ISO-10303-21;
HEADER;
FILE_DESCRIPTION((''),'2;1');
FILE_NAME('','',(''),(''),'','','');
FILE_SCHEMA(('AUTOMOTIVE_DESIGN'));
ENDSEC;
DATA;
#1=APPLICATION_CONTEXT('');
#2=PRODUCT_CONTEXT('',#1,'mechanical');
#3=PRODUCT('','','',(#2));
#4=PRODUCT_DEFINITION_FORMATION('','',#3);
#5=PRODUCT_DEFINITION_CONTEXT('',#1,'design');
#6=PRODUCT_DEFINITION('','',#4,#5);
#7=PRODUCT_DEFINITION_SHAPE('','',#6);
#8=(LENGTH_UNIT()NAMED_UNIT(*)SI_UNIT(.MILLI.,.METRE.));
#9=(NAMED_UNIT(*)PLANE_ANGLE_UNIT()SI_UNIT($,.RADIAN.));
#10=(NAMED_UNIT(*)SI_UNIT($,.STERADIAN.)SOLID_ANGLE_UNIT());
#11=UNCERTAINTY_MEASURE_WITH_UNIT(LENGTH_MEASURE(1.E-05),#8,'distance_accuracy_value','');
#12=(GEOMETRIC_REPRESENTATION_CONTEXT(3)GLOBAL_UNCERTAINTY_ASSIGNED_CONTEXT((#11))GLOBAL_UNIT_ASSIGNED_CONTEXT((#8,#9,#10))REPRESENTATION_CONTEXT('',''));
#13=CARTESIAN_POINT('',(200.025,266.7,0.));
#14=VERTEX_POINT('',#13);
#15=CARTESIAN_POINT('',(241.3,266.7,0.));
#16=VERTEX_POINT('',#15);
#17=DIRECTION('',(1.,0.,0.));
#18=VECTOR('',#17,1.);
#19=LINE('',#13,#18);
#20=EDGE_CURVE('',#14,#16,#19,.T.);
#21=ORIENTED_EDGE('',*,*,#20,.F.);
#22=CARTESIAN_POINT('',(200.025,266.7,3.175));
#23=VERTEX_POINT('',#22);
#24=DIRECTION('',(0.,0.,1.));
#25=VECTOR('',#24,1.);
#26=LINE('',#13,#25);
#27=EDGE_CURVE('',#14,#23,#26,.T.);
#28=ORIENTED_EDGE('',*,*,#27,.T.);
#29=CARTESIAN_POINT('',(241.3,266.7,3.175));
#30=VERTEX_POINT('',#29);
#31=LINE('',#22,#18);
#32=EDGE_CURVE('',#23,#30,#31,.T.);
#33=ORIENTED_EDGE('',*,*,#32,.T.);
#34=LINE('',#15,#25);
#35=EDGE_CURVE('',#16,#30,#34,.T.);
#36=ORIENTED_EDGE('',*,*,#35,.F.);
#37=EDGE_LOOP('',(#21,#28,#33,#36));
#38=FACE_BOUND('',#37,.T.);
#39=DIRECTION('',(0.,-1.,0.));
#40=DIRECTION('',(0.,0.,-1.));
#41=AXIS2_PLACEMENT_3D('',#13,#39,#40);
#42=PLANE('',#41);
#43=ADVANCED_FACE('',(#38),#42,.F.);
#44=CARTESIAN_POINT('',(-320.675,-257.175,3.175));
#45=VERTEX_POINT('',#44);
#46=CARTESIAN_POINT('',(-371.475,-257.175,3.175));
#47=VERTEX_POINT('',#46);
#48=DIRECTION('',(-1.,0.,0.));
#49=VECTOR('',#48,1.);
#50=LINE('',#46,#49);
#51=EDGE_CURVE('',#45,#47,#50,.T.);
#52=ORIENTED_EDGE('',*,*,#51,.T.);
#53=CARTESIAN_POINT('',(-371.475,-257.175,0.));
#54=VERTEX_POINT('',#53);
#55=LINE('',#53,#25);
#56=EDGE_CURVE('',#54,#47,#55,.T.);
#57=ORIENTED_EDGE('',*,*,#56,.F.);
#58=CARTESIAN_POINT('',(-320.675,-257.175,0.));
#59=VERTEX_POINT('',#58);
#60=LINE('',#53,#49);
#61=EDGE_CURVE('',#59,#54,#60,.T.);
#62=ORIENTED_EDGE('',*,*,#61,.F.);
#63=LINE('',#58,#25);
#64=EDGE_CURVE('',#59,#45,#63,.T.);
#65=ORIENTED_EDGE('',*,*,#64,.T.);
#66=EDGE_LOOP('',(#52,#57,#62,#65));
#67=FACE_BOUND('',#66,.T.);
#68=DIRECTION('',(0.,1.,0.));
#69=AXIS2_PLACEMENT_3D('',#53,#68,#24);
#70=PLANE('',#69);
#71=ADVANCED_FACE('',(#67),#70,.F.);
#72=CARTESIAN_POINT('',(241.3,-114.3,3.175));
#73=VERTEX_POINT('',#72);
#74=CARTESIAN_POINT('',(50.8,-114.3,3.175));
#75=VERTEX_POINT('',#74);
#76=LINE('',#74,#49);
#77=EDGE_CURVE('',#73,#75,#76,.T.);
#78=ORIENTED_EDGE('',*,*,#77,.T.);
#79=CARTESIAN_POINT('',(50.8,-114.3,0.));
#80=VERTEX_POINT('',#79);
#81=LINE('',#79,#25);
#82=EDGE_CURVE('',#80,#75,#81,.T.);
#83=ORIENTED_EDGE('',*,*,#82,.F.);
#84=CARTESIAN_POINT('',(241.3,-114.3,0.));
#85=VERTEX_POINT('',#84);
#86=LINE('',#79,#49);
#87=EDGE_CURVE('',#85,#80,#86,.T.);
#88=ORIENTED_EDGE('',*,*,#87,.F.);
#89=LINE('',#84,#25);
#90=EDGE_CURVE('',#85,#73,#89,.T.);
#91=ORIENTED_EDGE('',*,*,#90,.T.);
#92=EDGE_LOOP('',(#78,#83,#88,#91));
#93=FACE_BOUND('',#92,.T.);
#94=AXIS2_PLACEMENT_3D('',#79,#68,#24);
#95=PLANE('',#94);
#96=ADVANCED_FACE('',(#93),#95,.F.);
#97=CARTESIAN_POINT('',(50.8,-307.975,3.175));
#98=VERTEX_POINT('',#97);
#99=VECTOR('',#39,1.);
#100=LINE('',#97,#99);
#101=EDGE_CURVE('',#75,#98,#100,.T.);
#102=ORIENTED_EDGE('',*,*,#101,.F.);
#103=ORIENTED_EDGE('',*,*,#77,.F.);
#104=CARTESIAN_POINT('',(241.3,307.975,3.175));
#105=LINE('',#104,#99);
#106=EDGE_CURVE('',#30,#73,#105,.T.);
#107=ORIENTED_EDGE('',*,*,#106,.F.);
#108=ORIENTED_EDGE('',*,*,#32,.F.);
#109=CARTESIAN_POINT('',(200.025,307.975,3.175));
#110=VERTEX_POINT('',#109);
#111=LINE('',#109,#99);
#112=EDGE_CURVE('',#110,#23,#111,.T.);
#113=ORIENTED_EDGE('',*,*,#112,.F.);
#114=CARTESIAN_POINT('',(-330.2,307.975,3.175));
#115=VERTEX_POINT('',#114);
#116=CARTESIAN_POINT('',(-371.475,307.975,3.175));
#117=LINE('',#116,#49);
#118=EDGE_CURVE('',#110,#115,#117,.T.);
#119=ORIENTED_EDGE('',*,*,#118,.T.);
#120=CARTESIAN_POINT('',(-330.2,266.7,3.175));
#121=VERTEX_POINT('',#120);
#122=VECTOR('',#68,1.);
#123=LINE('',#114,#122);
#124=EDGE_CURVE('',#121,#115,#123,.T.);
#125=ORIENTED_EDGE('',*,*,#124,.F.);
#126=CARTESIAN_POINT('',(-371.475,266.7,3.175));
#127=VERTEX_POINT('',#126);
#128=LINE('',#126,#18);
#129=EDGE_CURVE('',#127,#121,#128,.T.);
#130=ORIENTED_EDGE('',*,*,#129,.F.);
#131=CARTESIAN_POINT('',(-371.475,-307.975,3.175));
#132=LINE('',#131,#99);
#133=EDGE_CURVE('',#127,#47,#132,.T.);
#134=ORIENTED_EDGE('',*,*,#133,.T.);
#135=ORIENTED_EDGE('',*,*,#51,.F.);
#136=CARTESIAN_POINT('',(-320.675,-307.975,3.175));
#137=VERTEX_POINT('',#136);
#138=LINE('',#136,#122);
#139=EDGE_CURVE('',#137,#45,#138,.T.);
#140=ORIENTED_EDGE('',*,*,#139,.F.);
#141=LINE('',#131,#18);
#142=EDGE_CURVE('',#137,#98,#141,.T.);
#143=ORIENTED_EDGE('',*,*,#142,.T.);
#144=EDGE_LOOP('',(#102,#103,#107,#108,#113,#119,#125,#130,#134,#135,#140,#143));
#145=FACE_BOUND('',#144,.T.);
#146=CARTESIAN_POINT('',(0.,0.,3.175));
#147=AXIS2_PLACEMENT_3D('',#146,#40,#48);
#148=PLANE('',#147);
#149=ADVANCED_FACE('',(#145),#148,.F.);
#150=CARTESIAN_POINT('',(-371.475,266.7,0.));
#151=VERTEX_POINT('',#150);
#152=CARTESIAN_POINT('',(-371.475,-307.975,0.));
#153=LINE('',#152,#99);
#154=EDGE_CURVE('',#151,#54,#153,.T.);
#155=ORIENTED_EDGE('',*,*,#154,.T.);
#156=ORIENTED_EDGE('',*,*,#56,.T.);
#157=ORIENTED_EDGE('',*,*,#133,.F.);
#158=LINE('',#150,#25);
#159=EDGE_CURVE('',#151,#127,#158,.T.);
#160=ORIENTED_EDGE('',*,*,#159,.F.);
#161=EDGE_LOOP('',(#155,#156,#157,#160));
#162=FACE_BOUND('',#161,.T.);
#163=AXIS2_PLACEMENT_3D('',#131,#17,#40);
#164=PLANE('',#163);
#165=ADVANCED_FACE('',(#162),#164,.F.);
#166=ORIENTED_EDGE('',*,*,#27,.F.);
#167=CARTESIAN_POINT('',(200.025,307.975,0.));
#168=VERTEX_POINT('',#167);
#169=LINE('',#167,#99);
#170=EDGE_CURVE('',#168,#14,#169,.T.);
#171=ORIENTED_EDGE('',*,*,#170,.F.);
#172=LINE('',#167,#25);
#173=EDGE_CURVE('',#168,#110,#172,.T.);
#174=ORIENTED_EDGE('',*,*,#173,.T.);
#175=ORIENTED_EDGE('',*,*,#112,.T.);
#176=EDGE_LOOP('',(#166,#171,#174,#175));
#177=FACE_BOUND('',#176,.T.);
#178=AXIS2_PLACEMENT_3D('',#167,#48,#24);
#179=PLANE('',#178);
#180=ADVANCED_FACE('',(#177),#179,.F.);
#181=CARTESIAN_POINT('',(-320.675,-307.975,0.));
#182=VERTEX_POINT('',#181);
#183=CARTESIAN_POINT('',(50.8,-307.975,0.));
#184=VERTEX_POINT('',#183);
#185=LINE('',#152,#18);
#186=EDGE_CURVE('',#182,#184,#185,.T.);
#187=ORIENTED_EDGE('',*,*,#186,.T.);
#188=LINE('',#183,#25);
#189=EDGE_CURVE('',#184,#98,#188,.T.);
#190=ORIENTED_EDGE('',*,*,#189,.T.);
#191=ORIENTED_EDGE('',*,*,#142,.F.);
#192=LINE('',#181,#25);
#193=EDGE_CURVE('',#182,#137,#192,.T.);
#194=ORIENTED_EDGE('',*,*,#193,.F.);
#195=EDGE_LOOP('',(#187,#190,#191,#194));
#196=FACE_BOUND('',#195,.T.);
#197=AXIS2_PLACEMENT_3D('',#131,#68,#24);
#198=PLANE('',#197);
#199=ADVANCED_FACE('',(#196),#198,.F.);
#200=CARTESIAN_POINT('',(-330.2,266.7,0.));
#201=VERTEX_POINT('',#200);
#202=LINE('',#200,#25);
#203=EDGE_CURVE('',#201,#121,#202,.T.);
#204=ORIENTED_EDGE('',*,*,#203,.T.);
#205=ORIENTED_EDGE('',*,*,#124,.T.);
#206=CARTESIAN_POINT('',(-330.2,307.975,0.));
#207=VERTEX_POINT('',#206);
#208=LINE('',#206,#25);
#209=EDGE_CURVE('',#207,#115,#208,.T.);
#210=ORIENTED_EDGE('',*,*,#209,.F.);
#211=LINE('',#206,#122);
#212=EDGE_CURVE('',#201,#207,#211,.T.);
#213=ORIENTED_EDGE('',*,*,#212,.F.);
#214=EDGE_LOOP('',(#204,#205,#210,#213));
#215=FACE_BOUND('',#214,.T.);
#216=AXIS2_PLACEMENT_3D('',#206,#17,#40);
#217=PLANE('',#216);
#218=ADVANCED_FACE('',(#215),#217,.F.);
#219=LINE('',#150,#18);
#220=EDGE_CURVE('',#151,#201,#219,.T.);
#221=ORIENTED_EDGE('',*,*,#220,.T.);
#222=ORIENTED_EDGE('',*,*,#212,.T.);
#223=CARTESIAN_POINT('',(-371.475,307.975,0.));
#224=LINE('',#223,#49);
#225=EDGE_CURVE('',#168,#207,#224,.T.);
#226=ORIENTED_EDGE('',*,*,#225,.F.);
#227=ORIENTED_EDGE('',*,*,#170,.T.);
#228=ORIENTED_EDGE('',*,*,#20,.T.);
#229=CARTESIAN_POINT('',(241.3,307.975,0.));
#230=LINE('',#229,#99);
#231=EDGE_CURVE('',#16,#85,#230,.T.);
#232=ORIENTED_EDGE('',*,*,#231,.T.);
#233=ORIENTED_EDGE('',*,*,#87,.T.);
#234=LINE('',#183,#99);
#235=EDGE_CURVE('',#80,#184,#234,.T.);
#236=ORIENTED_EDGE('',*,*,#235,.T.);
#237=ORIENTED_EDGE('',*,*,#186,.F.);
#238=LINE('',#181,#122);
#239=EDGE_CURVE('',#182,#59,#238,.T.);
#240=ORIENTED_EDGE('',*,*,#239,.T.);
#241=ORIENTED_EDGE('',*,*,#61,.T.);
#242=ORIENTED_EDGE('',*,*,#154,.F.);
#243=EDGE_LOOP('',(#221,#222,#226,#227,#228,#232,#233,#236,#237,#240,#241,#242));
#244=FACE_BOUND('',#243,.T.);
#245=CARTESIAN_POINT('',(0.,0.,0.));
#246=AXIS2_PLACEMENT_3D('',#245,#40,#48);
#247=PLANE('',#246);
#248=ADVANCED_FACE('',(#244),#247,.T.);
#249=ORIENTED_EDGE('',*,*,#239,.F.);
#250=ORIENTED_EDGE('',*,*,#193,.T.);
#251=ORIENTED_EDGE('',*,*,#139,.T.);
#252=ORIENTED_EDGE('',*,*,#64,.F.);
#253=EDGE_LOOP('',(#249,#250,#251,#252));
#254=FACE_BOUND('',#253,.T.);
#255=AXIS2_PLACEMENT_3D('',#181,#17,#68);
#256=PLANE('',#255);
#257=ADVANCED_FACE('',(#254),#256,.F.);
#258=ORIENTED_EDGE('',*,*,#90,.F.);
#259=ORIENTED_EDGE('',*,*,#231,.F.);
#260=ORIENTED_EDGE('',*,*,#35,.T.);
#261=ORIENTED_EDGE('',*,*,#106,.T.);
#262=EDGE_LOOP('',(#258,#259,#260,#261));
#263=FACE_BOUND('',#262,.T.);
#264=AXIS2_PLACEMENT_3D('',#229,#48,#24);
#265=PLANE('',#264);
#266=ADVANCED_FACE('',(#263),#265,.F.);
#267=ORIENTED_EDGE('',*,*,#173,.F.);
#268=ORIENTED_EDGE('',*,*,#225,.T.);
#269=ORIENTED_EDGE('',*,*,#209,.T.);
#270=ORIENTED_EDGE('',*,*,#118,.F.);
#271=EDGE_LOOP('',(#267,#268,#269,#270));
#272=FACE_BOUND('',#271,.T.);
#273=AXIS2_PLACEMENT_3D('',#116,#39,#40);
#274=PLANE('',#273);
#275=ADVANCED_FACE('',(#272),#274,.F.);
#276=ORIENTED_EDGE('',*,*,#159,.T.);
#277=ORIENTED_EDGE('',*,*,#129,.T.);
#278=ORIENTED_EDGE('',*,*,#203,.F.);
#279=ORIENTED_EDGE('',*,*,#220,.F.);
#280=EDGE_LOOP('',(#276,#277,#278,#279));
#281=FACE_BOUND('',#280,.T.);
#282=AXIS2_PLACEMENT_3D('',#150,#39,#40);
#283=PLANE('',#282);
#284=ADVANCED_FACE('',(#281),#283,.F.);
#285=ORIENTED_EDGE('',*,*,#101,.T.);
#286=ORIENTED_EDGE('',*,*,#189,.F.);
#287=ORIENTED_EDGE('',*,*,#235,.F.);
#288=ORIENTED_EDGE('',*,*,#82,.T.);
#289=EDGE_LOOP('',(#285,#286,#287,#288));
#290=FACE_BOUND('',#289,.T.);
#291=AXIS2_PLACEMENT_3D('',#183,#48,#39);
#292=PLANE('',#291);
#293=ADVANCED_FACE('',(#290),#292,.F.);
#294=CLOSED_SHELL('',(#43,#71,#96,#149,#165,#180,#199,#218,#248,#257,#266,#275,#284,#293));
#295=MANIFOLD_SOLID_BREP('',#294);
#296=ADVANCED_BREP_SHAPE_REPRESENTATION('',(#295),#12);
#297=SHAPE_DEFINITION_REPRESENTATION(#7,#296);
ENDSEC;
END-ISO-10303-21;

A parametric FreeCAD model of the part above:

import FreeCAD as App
import Part
import Sketcher
Q = App.Units.Quantity


def add_polygon(sketch, points):
    """Adds a closed chain of lines whose ends are joined by coincident constraints."""
    first, n = sketch.GeometryCount, len(points)
    for a, b in zip(points, points[1:] + points[:1]):
        sketch.addGeometry(Part.LineSegment(App.Vector(*a, 0), App.Vector(*b, 0)), False)
    for i in range(n):
        sketch.addConstraint(Sketcher.Constraint("Coincident", first + i, 2, first + (i + 1) % n, 1))

doc = App.newDocument("Part")
body = doc.addObject("PartDesign::Body", "Body")

sketch1 = body.newObject("Sketcher::SketchObject", "Sketch")
sketch1.AttachmentSupport = (doc.getObject("XY_Plane"), [""])
sketch1.MapMode = "FlatFace"
add_polygon(sketch1, [(-371, 308), (-371, -308), (371, -308), (371, 308)])
sketch1.addConstraint([
    Sketcher.Constraint("Vertical", 0),
    Sketcher.Constraint("Horizontal", 1),
    Sketcher.Constraint("Vertical", 2),
    Sketcher.Constraint("Horizontal", 3),
    Sketcher.Constraint("Symmetric", 0, 2, 2, 2, -1, 1),
    Sketcher.Constraint("DistanceX", 1, 1, 1, 2, Q("29.25 in")),
    Sketcher.Constraint("DistanceY", 0, 2, 0, 1, Q("24.25 in")),
])
pad1 = body.newObject("PartDesign::Pad", "Pad")
pad1.Profile = sketch1
pad1.Length = Q("0.125 in")

sketch2 = body.newObject("Sketcher::SketchObject", "Sketch001")
sketch2.AttachmentSupport = (doc.getObject("XY_Plane"), [""])
sketch2.MapMode = "FlatFace"
sketch2.AttachmentOffset = App.Placement(App.Vector(0, 0, 0.125 * 25.4), App.Rotation())
add_polygon(sketch2, [(-371, 308), (-371, 267), (-330, 267), (-330, 308)])
add_polygon(sketch2, [(-371, -257), (-371, -308), (-321, -308), (-321, -257)])
add_polygon(sketch2, [(200, 308), (200, 267), (241, 267), (241, 308)])
add_polygon(sketch2, [(51, -114), (51, -308), (241, -308), (241, -114)])
sketch2.addConstraint([
    Sketcher.Constraint("Vertical", 0),
    Sketcher.Constraint("Horizontal", 1),
    Sketcher.Constraint("Vertical", 2),
    Sketcher.Constraint("Horizontal", 3),
    Sketcher.Constraint("Vertical", 4),
    Sketcher.Constraint("Horizontal", 5),
    Sketcher.Constraint("Vertical", 6),
    Sketcher.Constraint("Horizontal", 7),
    Sketcher.Constraint("Vertical", 8),
    Sketcher.Constraint("Horizontal", 9),
    Sketcher.Constraint("Vertical", 10),
    Sketcher.Constraint("Horizontal", 11),
    Sketcher.Constraint("Vertical", 12),
    Sketcher.Constraint("Horizontal", 13),
    Sketcher.Constraint("Vertical", 14),
    Sketcher.Constraint("Horizontal", 15),
    Sketcher.Constraint("Symmetric", 3, 2, 4, 2, -1),
    Sketcher.Constraint("Symmetric", 10, 2, 13, 2, -1),
    Sketcher.Constraint("Horizontal", 1, 2, 8, 2),
    Sketcher.Constraint("Horizontal", 3, 2, 10, 2),
    Sketcher.Constraint("Equal", 3, 9),
    Sketcher.Constraint("Equal", 11, 0),
    Sketcher.Constraint("Equal", 7, 4),
    Sketcher.Constraint("DistanceX", 5, 1, 5, 2, Q("2 in")),
    Sketcher.Constraint("DistanceX", 13, 1, 13, 2, Q("7.5 in")),
    Sketcher.Constraint("DistanceX", 1, 2, -1, 1, Q("13 in")),
    Sketcher.Constraint("DistanceX", -1, 1, 12, 2, Q("2 in")),
    Sketcher.Constraint("DistanceY", 14, 2, 9, 2, Q("15 in")),
    Sketcher.Constraint("DistanceY", -1, 1, 0, 2, Q("10.5 in")),
    Sketcher.Constraint("DistanceX", 1, 1, 1, 2, Q("1.625 in")),
])
pocket1 = body.newObject("PartDesign::Pocket", "Pocket")
pocket1.Profile = sketch2
pocket1.Type = "ThroughAll"

sketch3 = body.newObject("Sketcher::SketchObject", "Sketch002")
sketch3.AttachmentSupport = (doc.getObject("XY_Plane"), [""])
sketch3.MapMode = "FlatFace"
sketch3.AttachmentOffset = App.Placement(App.Vector(0, 0, 0.125 * 25.4), App.Rotation())
add_polygon(sketch3, [(241, 308), (241, -308), (371, -308), (371, 308)])
sketch3.addConstraint([
    Sketcher.Constraint("Vertical", 0),
    Sketcher.Constraint("Horizontal", 1),
    Sketcher.Constraint("Vertical", 2),
    Sketcher.Constraint("Horizontal", 3),
    Sketcher.Constraint("DistanceY", 0, 2, 0, 1, Q("24.25 in")),
    Sketcher.Constraint("DistanceX", -1, 1, 0, 2, Q("9.5 in")),
    Sketcher.Constraint("DistanceX", 1, 1, 1, 2, Q("5.125 in")),
    Sketcher.Constraint("DistanceY", 0, 2, -1, 1, Q("12.125 in")),
])
pocket2 = body.newObject("PartDesign::Pocket", "Pocket001")
pocket2.Profile = sketch3
pocket2.Type = "ThroughAll"

doc.recompute()
